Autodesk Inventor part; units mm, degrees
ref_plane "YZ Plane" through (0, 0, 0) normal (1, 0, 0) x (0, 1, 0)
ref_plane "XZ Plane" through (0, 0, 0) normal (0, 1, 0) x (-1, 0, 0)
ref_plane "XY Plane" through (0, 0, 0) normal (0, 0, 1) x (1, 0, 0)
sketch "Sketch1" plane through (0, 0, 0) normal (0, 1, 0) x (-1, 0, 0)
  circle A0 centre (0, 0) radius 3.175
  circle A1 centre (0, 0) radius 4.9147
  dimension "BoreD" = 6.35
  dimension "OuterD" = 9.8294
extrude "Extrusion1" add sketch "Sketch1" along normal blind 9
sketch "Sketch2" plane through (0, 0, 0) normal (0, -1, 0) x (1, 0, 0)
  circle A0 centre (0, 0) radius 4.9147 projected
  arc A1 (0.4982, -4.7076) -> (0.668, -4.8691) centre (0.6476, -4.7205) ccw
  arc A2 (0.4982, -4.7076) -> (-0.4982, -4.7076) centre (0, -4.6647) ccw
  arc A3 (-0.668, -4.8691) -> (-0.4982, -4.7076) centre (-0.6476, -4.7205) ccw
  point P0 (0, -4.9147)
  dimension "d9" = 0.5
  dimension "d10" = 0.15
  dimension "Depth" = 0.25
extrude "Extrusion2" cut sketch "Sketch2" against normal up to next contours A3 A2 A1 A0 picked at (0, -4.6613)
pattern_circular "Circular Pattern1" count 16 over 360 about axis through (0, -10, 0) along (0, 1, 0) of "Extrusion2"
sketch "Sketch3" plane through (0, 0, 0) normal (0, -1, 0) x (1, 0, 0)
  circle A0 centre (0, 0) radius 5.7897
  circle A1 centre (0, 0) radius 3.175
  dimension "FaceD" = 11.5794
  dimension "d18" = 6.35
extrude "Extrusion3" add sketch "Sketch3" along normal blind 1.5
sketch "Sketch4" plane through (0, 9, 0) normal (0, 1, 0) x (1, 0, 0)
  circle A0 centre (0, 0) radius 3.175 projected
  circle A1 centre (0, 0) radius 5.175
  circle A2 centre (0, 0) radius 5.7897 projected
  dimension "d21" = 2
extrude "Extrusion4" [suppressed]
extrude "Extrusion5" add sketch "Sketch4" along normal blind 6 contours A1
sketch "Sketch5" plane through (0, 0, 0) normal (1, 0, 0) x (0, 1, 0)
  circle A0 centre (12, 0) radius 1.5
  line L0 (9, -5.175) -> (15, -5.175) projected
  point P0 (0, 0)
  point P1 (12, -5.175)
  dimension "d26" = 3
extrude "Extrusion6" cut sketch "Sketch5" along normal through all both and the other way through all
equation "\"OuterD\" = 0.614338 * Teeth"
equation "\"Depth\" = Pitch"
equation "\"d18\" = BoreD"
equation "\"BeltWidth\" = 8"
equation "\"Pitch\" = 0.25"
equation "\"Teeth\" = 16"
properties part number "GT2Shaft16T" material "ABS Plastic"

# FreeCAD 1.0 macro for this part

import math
import FreeCAD as App
import Part
import Sketcher
from FreeCAD import Vector

doc = App.newDocument("Part")
body = doc.addObject("PartDesign::Body", "Body")

sketch1 = body.newObject("Sketcher::SketchObject", "Sketch")
sketch1.AttachmentSupport = (doc.getObject("XZ_Plane"), [""])
sketch1.MapMode = "FlatFace"
sketch1.addGeometry([
    Part.Circle(Vector(0, 0, 0), Vector(0, 0, 1), 4.9),
    Part.Circle(Vector(0, 0, 0), Vector(0, 0, 1), 3.2),
], False)
sketch1.addConstraint([
    Sketcher.Constraint("Coincident", 0, 3, -1, 1),
    Sketcher.Constraint("Coincident", 1, 3, -1, 1),
    Sketcher.Constraint("Diameter", 1, 6.35),
    Sketcher.Constraint("Diameter", 0, 9.8294),
])
pad1 = body.newObject("PartDesign::Pad", "Pad")
pad1.Profile = sketch1
pad1.Length = 9
pad1.Reversed = True

sketch2 = body.newObject("Sketcher::SketchObject", "Sketch001")
sketch2.AttachmentSupport = (doc.getObject("XZ_Plane"), [""])
sketch2.MapMode = "FlatFace"
sketch2.addGeometry([
    Part.ArcOfCircle(Part.Circle(Vector(-0.6476, -4.7205, 0), Vector(0, 0, 1), 0.149994), math.radians(-97.816778), math.radians(4.934986)),
    Part.ArcOfCircle(Part.Circle(Vector(0, 0, 0), Vector(0, 0, 1), 4.9147), math.radians(-97.811738), math.radians(-82.188262)),
    Part.ArcOfCircle(Part.Circle(Vector(0.6476, -4.7205, 0), Vector(0, 0, 1), 0.149956), math.radians(175.065014), math.radians(277.816778)),
    Part.ArcOfCircle(Part.Circle(Vector(0, -4.6647, 0), Vector(0, 0, 1), 0.500044), math.radians(-4.921599), math.radians(184.921599)),
], False)
sketch2.addConstraint([
    Sketcher.Constraint("Coincident", 0, 1, 1, 1),
    Sketcher.Constraint("Coincident", 1, 2, 2, 2),
    Sketcher.Constraint("Coincident", 2, 1, 3, 1),
    Sketcher.Constraint("Coincident", 3, 2, 0, 2),
    Sketcher.Constraint("Coincident", 1, 3, -1, 1),
    Sketcher.Constraint("PointOnObject", 3, 3, -2),
    Sketcher.Constraint("Radius", 3, 0.5),
    Sketcher.Constraint("Radius", 0, 0.15),
    Sketcher.Constraint("Radius", 2, 0.15),
    Sketcher.Constraint("Radius", 1, 4.9147),
    Sketcher.Constraint("DistanceX", 0, 3, 3, 2, 0.1494),
    Sketcher.Constraint("DistanceX", 0, 1, -1, 1, 0.668),
    Sketcher.Constraint("DistanceX", -1, 1, 1, 2, 0.668),
    Sketcher.Constraint("DistanceY", 2, 3, 2, 1, 0.013),
    Sketcher.Constraint("DistanceY", 2, 1, 3, 3, 0.043),
])
pocket1 = body.newObject("PartDesign::Pocket", "Pocket")
pocket1.Profile = sketch2
pocket1.Type = "UpToFirst"
doc.recompute()

polarpattern = body.newObject("PartDesign::PolarPattern", "PolarPattern")
polarpattern.Originals = [pocket1]
polarpattern.Axis = (doc.getObject("Y_Axis"), [""])
polarpattern.Angle = 360
polarpattern.Occurrences = 16
body.Tip = polarpattern

sketch3 = body.newObject("Sketcher::SketchObject", "Sketch002")
sketch3.AttachmentSupport = (doc.getObject("XZ_Plane"), [""])
sketch3.MapMode = "FlatFace"
sketch3.addGeometry([
    Part.Circle(Vector(0, 0, 0), Vector(0, 0, 1), 5.8),
    Part.Circle(Vector(0, 0, 0), Vector(0, 0, 1), 3.2),
], False)
sketch3.addConstraint([
    Sketcher.Constraint("Coincident", 0, 3, -1, 1),
    Sketcher.Constraint("Coincident", 1, 3, -1, 1),
    Sketcher.Constraint("Diameter", 1, 6.35),
    Sketcher.Constraint("Diameter", 0, 11.5794),
])
pad2 = body.newObject("PartDesign::Pad", "Pad001")
pad2.Profile = sketch3
pad2.Length = 1.5

sketch4 = body.newObject("Sketcher::SketchObject", "Sketch003")
sketch4.AttachmentSupport = (doc.getObject("XZ_Plane"), [""])
sketch4.MapMode = "FlatFace"
sketch4.AttachmentOffset = App.Placement(Vector(0, 0, -9), App.Rotation())
sketch4.addGeometry([
    Part.Circle(Vector(0, 0, 0), Vector(0, 0, 1), 5.2),
    Part.Circle(Vector(0, 0, 0), Vector(0, 0, 1), 3.2),
], False)
sketch4.addConstraint([
    Sketcher.Constraint("Coincident", 0, 3, -1, 1),
    Sketcher.Constraint("Coincident", 1, 3, -1, 1),
    Sketcher.Constraint("Diameter", 0, 10.35),
    Sketcher.Constraint("Diameter", 1, 6.35),
])
pad3 = body.newObject("PartDesign::Pad", "Pad002")
pad3.Profile = sketch4
pad3.Length = 6
pad3.Reversed = True

sketch5 = body.newObject("Sketcher::SketchObject", "Sketch004")
sketch5.AttachmentSupport = (doc.getObject("YZ_Plane"), [""])
sketch5.MapMode = "FlatFace"
sketch5.addGeometry(Part.Circle(Vector(12, 0, 0), Vector(0, 0, 1), 1.5), False)
sketch5.addConstraint([
    Sketcher.Constraint("PointOnObject", 0, 3, -1),
    Sketcher.Constraint("Diameter", 0, 3.0),
    Sketcher.Constraint("DistanceX", -1, 1, 0, 3, 12.0),
])
pocket2 = body.newObject("PartDesign::Pocket", "Pocket001")
pocket2.Profile = sketch5
pocket2.Type = "ThroughAll"
pocket2.Midplane = True

doc.recompute()
